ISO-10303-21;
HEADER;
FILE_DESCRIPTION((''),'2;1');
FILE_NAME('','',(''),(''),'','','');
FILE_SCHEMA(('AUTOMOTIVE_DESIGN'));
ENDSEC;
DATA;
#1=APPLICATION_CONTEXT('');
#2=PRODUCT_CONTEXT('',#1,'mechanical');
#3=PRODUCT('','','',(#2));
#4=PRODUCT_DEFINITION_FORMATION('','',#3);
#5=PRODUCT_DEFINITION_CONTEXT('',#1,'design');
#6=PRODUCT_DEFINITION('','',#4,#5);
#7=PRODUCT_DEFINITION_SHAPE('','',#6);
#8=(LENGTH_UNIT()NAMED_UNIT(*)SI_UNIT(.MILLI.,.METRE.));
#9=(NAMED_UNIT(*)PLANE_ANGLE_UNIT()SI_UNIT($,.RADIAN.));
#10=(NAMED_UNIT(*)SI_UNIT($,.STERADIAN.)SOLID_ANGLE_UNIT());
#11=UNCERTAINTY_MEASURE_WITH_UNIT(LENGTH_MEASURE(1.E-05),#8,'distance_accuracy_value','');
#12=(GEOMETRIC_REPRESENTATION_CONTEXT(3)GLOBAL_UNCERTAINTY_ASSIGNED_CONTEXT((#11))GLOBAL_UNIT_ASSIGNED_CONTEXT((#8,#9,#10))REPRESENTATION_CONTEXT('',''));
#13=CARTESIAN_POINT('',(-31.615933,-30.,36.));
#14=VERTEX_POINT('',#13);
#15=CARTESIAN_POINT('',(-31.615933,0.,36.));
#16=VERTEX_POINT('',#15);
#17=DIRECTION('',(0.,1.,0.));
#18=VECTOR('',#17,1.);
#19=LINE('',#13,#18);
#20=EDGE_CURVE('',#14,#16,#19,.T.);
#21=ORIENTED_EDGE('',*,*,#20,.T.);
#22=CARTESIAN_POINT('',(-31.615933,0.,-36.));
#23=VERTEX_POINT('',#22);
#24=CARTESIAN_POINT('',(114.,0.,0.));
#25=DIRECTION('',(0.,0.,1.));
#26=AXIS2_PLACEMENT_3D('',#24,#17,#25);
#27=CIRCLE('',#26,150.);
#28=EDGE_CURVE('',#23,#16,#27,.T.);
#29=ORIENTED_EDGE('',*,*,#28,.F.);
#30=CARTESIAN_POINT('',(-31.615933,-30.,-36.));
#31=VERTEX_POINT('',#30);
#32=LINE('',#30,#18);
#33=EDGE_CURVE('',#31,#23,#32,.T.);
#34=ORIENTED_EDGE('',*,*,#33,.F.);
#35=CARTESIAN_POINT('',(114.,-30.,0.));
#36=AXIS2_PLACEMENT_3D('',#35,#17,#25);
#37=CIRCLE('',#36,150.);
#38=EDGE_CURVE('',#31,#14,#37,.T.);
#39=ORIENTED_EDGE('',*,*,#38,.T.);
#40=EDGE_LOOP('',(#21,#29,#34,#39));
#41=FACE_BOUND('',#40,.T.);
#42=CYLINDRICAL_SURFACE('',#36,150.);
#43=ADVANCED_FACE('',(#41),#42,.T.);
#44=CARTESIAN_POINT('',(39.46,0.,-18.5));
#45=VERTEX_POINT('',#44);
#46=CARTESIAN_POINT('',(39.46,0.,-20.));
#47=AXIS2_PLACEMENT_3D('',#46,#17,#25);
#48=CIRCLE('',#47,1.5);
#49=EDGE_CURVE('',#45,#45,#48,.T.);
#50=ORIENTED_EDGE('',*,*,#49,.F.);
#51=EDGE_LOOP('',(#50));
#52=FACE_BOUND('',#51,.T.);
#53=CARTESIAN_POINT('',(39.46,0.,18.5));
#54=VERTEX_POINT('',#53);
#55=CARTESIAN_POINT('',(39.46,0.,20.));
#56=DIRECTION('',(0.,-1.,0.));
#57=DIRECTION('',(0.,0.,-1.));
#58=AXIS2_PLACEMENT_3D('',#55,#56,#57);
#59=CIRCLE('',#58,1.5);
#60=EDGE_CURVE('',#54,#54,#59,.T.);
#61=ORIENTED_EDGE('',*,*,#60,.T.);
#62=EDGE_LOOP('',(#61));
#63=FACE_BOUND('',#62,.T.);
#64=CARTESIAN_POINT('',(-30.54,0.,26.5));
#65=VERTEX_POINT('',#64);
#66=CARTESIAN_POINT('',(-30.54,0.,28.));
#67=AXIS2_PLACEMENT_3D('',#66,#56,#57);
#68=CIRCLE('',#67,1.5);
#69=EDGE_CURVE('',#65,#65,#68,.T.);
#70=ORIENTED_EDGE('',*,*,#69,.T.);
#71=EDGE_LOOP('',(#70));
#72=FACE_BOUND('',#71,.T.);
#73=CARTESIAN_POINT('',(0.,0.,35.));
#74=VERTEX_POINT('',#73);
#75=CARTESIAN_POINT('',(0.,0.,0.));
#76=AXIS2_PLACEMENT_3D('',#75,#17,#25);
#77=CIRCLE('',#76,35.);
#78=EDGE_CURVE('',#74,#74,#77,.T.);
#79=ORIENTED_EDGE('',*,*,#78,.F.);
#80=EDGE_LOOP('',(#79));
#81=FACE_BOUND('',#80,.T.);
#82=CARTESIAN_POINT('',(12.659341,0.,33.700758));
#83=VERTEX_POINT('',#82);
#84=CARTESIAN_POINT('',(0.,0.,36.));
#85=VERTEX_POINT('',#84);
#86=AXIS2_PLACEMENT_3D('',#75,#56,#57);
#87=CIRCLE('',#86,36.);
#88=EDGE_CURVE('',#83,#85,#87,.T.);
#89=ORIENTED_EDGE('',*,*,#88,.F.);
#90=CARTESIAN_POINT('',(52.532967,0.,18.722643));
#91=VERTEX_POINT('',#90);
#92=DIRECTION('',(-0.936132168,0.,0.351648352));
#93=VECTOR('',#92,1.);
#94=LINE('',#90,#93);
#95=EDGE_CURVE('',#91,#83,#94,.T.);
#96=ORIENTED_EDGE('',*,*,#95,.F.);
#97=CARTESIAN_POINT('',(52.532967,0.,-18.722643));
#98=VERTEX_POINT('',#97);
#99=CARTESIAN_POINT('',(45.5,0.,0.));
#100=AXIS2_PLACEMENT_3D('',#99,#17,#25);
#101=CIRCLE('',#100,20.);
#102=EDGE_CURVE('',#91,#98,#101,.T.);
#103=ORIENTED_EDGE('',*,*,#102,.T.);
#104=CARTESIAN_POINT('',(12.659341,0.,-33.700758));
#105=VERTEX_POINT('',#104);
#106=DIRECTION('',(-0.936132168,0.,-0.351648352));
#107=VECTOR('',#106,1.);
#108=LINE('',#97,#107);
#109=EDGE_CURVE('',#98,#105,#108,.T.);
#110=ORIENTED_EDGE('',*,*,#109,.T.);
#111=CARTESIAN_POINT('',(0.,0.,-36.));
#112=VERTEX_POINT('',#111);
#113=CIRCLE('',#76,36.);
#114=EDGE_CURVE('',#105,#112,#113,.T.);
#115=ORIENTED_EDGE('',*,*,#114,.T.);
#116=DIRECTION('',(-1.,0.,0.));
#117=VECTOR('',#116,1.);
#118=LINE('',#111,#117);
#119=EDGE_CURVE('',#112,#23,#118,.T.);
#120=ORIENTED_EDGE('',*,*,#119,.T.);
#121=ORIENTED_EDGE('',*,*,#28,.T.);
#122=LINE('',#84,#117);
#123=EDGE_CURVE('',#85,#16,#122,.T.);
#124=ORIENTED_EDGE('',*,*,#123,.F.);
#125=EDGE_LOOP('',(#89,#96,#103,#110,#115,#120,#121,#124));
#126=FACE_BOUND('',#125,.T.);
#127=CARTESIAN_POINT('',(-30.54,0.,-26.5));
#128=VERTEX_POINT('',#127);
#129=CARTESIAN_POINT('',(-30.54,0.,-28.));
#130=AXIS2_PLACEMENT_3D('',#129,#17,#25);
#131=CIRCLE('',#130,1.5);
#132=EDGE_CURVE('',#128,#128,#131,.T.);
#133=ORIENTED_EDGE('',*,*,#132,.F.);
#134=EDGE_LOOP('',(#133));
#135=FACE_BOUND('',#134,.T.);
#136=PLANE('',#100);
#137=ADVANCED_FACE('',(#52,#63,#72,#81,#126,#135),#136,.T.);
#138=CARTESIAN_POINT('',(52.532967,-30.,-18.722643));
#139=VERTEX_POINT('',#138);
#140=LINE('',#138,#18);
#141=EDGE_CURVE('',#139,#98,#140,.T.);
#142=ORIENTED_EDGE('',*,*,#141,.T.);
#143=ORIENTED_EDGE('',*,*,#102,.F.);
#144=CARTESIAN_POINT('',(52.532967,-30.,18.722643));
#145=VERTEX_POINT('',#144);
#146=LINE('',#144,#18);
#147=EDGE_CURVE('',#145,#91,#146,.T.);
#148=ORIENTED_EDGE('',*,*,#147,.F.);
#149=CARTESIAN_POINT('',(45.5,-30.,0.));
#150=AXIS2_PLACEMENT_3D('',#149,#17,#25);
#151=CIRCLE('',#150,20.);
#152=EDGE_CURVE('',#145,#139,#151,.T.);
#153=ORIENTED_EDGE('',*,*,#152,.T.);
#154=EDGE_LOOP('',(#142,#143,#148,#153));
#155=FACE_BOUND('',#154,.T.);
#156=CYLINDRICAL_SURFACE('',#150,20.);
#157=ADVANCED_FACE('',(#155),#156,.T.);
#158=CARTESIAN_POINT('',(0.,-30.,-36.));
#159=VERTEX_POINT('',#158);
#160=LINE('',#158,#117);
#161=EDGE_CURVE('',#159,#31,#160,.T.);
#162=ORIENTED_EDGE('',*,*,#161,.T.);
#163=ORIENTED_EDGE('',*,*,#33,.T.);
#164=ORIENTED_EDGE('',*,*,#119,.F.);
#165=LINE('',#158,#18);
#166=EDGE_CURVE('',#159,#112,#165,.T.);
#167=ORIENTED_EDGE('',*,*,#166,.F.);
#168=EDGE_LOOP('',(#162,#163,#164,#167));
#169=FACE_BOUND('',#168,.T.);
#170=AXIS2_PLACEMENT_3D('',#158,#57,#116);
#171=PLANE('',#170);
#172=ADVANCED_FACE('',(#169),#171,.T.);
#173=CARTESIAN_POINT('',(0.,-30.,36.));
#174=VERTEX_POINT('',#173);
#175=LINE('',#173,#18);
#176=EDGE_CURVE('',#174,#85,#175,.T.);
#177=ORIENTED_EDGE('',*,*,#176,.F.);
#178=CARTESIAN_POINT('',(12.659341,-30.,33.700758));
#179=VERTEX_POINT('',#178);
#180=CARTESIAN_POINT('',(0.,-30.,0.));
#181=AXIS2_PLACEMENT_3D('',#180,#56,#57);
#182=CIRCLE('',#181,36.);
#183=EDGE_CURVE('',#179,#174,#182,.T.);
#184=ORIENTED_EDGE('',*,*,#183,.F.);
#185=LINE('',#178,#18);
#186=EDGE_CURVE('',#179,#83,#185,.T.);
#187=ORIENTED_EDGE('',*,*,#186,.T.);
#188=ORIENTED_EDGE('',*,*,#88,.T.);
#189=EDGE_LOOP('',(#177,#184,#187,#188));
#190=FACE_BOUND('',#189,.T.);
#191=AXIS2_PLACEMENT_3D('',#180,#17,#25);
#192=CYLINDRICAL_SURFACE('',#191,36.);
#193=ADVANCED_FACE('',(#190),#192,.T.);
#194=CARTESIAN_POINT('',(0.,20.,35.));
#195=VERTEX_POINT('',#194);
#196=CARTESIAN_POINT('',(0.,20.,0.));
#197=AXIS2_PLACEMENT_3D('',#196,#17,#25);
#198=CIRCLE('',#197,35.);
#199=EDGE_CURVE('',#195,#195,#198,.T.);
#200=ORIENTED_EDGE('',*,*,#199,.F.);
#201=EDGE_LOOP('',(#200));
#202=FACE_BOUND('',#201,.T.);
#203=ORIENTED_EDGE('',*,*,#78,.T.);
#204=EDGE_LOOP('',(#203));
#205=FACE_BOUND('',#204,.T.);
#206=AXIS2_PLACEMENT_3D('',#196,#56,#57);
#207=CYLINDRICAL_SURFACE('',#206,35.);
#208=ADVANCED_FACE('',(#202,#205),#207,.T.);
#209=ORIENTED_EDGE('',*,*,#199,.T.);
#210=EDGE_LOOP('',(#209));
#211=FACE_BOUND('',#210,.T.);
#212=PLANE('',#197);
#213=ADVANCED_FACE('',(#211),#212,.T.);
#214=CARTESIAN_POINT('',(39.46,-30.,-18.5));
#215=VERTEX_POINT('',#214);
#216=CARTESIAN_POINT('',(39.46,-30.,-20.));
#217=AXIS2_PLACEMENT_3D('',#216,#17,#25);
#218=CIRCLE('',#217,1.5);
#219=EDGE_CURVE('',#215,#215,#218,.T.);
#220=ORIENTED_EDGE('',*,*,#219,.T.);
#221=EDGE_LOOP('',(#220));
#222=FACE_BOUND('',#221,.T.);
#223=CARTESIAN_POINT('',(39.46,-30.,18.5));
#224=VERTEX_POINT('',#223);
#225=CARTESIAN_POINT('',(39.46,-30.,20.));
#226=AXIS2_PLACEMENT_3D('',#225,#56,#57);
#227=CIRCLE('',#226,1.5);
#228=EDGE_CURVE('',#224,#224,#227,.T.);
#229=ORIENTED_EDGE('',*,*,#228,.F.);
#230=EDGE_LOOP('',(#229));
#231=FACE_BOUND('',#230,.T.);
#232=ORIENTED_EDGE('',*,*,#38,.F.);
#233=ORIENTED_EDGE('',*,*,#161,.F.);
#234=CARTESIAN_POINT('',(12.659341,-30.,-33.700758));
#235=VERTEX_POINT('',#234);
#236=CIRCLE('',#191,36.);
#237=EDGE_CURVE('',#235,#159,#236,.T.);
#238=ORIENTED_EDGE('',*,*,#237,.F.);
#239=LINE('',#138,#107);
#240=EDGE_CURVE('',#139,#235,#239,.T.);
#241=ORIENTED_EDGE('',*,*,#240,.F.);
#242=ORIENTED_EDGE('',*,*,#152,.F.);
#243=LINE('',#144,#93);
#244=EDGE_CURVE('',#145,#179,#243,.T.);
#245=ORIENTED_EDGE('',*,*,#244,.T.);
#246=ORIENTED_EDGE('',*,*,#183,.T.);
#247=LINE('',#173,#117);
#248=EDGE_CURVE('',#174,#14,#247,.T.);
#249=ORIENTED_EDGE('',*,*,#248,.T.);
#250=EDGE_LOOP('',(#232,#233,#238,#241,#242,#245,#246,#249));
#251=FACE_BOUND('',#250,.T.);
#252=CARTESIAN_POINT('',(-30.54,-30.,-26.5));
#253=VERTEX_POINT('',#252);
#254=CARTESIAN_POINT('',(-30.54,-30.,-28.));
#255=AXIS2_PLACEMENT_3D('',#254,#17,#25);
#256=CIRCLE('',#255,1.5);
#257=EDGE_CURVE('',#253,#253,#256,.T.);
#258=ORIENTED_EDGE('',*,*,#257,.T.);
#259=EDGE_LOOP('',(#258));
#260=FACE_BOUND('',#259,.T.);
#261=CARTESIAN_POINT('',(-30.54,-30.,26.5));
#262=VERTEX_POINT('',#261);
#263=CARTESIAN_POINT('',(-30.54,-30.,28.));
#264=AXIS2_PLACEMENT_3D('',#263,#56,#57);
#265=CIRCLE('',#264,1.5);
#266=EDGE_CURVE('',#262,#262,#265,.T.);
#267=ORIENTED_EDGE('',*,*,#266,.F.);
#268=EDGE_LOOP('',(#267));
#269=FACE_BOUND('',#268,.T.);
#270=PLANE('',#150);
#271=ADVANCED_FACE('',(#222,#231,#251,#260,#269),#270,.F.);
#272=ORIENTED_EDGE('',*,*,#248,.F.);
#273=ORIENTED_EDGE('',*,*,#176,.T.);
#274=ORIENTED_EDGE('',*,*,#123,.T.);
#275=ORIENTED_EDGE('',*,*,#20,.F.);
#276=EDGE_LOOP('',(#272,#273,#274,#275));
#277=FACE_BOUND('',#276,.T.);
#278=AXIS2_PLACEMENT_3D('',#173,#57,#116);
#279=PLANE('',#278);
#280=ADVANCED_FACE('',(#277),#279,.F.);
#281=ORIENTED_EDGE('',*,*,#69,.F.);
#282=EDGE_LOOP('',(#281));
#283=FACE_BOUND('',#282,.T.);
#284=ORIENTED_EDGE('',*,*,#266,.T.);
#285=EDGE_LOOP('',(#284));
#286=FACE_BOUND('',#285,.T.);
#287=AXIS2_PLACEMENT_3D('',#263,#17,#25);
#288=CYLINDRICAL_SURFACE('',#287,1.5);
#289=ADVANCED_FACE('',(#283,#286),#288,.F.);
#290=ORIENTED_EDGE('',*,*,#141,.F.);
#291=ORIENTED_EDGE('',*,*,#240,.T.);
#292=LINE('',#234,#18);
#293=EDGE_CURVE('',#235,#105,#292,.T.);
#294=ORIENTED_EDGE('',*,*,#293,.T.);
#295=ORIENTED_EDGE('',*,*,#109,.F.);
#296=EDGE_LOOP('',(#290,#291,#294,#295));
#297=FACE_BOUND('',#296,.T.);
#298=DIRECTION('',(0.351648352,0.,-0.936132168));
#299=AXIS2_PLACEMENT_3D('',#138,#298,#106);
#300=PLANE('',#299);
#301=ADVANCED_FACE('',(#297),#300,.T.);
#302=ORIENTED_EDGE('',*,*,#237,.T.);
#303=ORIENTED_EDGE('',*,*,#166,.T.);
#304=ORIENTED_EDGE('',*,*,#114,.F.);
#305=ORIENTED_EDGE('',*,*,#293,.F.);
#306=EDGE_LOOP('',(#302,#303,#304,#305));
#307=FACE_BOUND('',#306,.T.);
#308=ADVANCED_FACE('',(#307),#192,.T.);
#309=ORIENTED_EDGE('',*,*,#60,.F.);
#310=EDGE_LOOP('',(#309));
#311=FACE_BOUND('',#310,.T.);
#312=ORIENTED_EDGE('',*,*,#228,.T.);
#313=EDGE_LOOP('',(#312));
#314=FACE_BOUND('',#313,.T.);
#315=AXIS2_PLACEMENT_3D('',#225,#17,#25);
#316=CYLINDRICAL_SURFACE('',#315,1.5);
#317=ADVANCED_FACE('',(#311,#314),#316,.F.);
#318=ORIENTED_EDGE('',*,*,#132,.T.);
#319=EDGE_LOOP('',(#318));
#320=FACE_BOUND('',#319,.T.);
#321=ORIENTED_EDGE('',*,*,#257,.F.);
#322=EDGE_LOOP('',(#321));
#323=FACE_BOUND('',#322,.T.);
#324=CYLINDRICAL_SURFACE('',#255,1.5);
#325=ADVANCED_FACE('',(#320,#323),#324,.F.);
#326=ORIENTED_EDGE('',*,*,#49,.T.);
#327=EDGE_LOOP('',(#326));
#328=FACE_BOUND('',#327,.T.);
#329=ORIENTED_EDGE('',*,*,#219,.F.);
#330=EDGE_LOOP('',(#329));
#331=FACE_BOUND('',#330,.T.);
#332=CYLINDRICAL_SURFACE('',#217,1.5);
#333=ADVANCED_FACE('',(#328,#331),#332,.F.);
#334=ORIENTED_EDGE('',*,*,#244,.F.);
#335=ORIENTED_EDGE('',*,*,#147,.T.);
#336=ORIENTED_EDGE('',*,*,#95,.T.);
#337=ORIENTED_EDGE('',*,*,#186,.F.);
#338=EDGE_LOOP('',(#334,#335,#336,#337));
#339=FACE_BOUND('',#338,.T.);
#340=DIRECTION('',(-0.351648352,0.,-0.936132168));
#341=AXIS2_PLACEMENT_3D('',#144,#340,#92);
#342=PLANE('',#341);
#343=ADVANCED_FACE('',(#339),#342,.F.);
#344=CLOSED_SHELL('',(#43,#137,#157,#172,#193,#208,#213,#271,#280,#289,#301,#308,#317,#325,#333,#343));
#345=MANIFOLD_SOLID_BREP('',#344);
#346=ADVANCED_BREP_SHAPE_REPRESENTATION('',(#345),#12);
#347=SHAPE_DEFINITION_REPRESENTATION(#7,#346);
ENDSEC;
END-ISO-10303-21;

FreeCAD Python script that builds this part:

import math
import FreeCAD as App
import Part
import Sketcher
Q = App.Units.Quantity

doc = App.newDocument("Part")
params = doc.addObject("Spreadsheet::Sheet", "Params")
for row, (alias, value) in enumerate([
    ("sketch1_diameter", "70 mm"),
    ("pad1_length", "20 mm"),
    ("sketch2_radius", "36 mm"),
    ("sketch2_radius2", "150 mm"),
    ("sketch2_radius3", "20 mm"),
    ("sketch2_width", "101.5 mm"),
    ("pad2_length", "30 mm"),
    ("sketch3_diameter", "3 mm"),
], start=1):
    params.set(f"A{row}", alias)
    params.set(f"B{row}", "=" + value)
    params.setAlias(f"B{row}", alias)

body = doc.addObject("PartDesign::Body", "Body")

sketch1 = body.newObject("Sketcher::SketchObject", "Sketch")
sketch1.AttachmentSupport = (doc.getObject("XZ_Plane"), [""])
sketch1.MapMode = "FlatFace"
sketch1.addGeometry(Part.Circle(App.Vector(0, 0, 0), App.Vector(0, 0, 1), 35), False)
sketch1.addConstraint(Sketcher.Constraint("Coincident", 0, 3, -1, 1))
sketch1.addConstraint(Sketcher.Constraint("Diameter", 0, Q("70 mm")))
sketch1.setExpression("Constraints[1]", "Params.sketch1_diameter")
pad1 = body.newObject("PartDesign::Pad", "Pad")
pad1.Profile = sketch1
pad1.setExpression("Length", "Params.pad1_length")
pad1.Reversed = True

sketch2 = body.newObject("Sketcher::SketchObject", "Sketch001")
sketch2.AttachmentSupport = (doc.getObject("XZ_Plane"), [""])
sketch2.MapMode = "FlatFace"
sketch2.addGeometry(Part.LineSegment(App.Vector(53, -19, 0), App.Vector(13, -34, 0)), False)
sketch2.addGeometry(Part.ArcOfCircle(Part.Circle(App.Vector(0, 0, 0), App.Vector(0, 0, 1), 36), math.radians(-90), math.radians(-69)), False)
sketch2.addGeometry(Part.LineSegment(App.Vector(0, -36, 0), App.Vector(-32, -36, 0)), False)
sketch2.addGeometry(Part.ArcOfCircle(Part.Circle(App.Vector(114, 0, 0), App.Vector(0, 0, 1), 150), math.radians(180), math.radians(193.89)), False)
sketch2.addGeometry(Part.LineSegment(App.Vector(-36, 0, 0), App.Vector(66, 0, 0)), False)
sketch2.addGeometry(Part.ArcOfCircle(Part.Circle(App.Vector(46, 0, 0), App.Vector(0, 0, 1), 20), math.radians(-69), math.radians(0)), False)
sketch2.addConstraint(Sketcher.Constraint("Tangent", 0, 2, 1, 2))
sketch2.addConstraint(Sketcher.Constraint("Tangent", 1, 1, 2, 1))
sketch2.addConstraint(Sketcher.Constraint("Coincident", 2, 2, 3, 2))
sketch2.addConstraint(Sketcher.Constraint("Coincident", 3, 1, 4, 1))
sketch2.addConstraint(Sketcher.Constraint("Coincident", 4, 2, 5, 2))
sketch2.addConstraint(Sketcher.Constraint("Tangent", 5, 1, 0, 1))
sketch2.addConstraint(Sketcher.Constraint("Horizontal", 2))
sketch2.addConstraint(Sketcher.Constraint("Horizontal", 4))
sketch2.addConstraint(Sketcher.Constraint("Coincident", 1, 3, -1, 1))
sketch2.addConstraint(Sketcher.Constraint("PointOnObject", 3, 3, -1))
sketch2.addConstraint(Sketcher.Constraint("PointOnObject", 5, 3, -1))
sketch2.addConstraint(Sketcher.Constraint("PointOnObject", 3, 1, -1))
sketch2.addConstraint(Sketcher.Constraint("Radius", 1, Q("36 mm")))
sketch2.addConstraint(Sketcher.Constraint("Radius", 3, Q("150 mm")))
sketch2.addConstraint(Sketcher.Constraint("Radius", 5, Q("20 mm")))
sketch2.addConstraint(Sketcher.Constraint("DistanceX", 4, 1, 4, 2, Q("101.5 mm")))
sketch2.addConstraint(Sketcher.Constraint("DistanceX", -1, 1, 3, 3, Q("114 mm")))
sketch2.setExpression("Constraints[12]", "Params.sketch2_radius")
sketch2.setExpression("Constraints[13]", "Params.sketch2_radius2")
sketch2.setExpression("Constraints[14]", "Params.sketch2_radius3")
sketch2.setExpression("Constraints[15]", "Params.sketch2_width")
pad2 = body.newObject("PartDesign::Pad", "Pad001")
pad2.Profile = sketch2
pad2.setExpression("Length", "Params.pad2_length")
doc.recompute()

mirrored = body.newObject("PartDesign::Mirrored", "Mirrored")
mirrored.Originals = [pad2]
mirrored.MirrorPlane = (doc.getObject("XY_Plane"), [""])
body.Tip = mirrored

sketch3 = body.newObject("Sketcher::SketchObject", "Sketch002")
sketch3.AttachmentSupport = (doc.getObject("XZ_Plane"), [""])
sketch3.MapMode = "FlatFace"
sketch3.addGeometry(Part.Circle(App.Vector(-30.5, -28, 0), App.Vector(0, 0, 1), 1.5), False)
sketch3.addGeometry(Part.Circle(App.Vector(39.5, -20, 0), App.Vector(0, 0, 1), 1.5), False)
sketch3.addConstraint(Sketcher.Constraint("Equal", 0, 1))
sketch3.addConstraint(Sketcher.Constraint("Diameter", 0, Q("3 mm")))
sketch3.addConstraint(Sketcher.Constraint("DistanceY", 0, 3, -1, 1, Q("28 mm")))
sketch3.addConstraint(Sketcher.Constraint("DistanceY", 1, 3, -1, 1, Q("20 mm")))
sketch3.addConstraint(Sketcher.Constraint("DistanceX", 0, 3, 1, 3, Q("70 mm")))
sketch3.addConstraint(Sketcher.Constraint("DistanceX", 0, 3, -1, 1, Q("30.54 mm")))
sketch3.setExpression("Constraints[1]", "Params.sketch3_diameter")
pocket1 = body.newObject("PartDesign::Pocket", "Pocket")
pocket1.Profile = sketch3
pocket1.Type = "ThroughAll"
pocket1.Reversed = True
doc.recompute()

mirrored2 = body.newObject("PartDesign::Mirrored", "Mirrored001")
mirrored2.Originals = [pocket1]
mirrored2.MirrorPlane = (doc.getObject("XY_Plane"), [""])
body.Tip = mirrored2

doc.recompute()
